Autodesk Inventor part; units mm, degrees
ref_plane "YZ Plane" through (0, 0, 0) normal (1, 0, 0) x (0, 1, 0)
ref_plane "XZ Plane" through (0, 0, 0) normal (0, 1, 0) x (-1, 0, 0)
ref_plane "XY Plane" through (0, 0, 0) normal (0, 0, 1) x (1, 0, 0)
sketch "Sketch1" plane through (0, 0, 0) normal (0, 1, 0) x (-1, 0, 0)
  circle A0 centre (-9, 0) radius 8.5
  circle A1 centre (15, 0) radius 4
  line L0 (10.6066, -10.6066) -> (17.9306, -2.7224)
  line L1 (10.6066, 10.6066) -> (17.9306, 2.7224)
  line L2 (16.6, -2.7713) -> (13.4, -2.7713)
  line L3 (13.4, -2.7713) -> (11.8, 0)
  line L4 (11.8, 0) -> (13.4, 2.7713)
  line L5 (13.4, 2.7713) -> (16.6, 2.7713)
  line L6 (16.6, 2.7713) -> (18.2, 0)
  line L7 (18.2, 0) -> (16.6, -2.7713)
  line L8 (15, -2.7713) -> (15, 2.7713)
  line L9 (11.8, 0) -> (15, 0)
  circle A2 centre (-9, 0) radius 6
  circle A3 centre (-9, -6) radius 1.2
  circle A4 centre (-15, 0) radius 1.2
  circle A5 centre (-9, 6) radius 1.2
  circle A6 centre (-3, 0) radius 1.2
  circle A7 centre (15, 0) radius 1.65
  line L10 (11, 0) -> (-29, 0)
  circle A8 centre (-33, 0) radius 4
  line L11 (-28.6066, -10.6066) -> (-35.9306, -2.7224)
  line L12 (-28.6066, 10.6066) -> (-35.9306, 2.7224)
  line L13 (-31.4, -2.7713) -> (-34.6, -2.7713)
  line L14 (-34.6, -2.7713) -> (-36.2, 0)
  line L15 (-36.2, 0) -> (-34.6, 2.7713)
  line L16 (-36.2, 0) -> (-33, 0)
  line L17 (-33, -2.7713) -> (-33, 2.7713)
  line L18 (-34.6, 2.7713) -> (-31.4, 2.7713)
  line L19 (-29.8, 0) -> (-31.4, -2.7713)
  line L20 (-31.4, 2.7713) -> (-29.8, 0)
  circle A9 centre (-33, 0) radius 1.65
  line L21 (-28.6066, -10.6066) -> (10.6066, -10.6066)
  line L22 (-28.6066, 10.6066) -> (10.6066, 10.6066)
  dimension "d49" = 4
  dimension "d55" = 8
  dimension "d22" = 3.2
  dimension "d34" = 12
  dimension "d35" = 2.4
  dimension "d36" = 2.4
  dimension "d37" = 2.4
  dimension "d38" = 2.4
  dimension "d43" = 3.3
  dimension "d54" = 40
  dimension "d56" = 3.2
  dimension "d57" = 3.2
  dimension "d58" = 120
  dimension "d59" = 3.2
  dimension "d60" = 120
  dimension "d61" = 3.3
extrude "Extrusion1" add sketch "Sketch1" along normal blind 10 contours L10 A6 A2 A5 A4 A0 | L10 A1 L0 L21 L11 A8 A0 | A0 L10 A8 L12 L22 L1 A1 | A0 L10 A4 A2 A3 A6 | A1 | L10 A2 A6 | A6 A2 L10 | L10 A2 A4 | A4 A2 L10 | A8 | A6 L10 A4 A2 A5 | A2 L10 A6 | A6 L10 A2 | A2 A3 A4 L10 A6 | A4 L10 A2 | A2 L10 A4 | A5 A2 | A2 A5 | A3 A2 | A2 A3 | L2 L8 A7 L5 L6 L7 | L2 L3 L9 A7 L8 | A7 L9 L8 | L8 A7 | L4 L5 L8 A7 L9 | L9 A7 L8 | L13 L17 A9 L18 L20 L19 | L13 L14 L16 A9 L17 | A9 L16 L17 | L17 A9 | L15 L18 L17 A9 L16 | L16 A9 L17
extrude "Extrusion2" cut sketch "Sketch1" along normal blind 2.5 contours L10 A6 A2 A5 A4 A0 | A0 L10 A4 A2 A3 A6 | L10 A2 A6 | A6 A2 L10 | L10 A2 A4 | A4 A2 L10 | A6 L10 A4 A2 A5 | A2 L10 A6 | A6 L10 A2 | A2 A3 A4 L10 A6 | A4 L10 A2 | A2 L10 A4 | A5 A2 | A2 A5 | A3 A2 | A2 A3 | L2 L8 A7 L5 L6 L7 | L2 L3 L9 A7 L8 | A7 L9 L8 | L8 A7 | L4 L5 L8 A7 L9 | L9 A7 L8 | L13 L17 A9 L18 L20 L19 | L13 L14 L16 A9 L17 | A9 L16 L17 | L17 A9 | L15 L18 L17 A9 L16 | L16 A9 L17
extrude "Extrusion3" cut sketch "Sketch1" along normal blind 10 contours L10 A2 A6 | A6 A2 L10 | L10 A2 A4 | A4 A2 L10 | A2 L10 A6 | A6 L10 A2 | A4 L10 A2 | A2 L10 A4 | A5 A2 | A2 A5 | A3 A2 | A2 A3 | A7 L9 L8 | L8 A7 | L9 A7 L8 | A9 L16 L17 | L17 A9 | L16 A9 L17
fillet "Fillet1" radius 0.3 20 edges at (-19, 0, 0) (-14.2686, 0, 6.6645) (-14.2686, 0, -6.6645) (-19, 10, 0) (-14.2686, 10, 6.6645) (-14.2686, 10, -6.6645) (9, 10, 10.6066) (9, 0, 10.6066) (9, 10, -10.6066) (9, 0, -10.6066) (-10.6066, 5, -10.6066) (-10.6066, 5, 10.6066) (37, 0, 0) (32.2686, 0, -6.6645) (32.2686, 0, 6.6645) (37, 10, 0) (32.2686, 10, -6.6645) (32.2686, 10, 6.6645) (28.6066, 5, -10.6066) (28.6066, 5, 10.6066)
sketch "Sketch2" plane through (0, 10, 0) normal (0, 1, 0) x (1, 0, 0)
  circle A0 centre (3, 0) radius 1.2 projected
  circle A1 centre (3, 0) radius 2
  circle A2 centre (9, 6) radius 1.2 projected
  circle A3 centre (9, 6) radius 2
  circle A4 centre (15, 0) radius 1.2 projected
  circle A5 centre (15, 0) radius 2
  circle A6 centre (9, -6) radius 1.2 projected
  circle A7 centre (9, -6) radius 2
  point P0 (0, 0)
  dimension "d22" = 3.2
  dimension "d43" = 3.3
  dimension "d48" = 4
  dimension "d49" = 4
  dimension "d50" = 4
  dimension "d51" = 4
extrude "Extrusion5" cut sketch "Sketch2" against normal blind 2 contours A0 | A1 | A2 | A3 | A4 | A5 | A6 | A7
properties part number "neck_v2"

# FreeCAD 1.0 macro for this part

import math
import FreeCAD as App
import Part
import Sketcher

V = App.Vector
Q = App.Units.Quantity


def edges_at(feature, points):
    """Names of the edges that pass closest to the given points."""
    edges = feature.Shape.Edges
    near = lambda p: min(range(len(edges)), key=lambda i: edges[i].distToShape(Part.Vertex(*p))[0])
    return sorted({f"Edge{near(p) + 1}" for p in points})

doc = App.newDocument("Part")
body = doc.addObject("PartDesign::Body", "Body")

sketch1 = body.newObject("Sketcher::SketchObject", "Sketch")
sketch1.AttachmentSupport = (doc.getObject("XZ_Plane"), [""])
sketch1.MapMode = "FlatFace"
sketch1.addGeometry([
    Part.LineSegment(V(28.6066, 10.6066, 0), V(35.9306, 2.7224, 0)),
    Part.ArcOfCircle(Part.Circle(V(33, 0, 0), V(0, 0, 1), 4), math.radians(-42.89075), math.radians(42.89075)),
    Part.LineSegment(V(35.9306, -2.7224, 0), V(28.6066, -10.6066, 0)),
    Part.LineSegment(V(28.6066, -10.6066, 0), V(-10.6066, -10.6066, 0)),
    Part.LineSegment(V(-10.6066, -10.6066, 0), V(-17.9306, -2.7224, 0)),
    Part.ArcOfCircle(Part.Circle(V(-15, 0, 0), V(0, 0, 1), 4), math.radians(137.10925), math.radians(222.89075)),
    Part.LineSegment(V(-17.9306, 2.7224, 0), V(-10.6066, 10.6066, 0)),
    Part.LineSegment(V(-10.6066, 10.6066, 0), V(28.6066, 10.6066, 0)),
], False)
sketch1.addConstraint([
    Sketcher.Constraint("Tangent", 0, 2, 1, 2),
    Sketcher.Constraint("Tangent", 1, 1, 2, 1),
    Sketcher.Constraint("Coincident", 2, 2, 3, 1),
    Sketcher.Constraint("Coincident", 3, 2, 4, 1),
    Sketcher.Constraint("Tangent", 4, 2, 5, 2),
    Sketcher.Constraint("Tangent", 5, 1, 6, 1),
    Sketcher.Constraint("Coincident", 6, 2, 7, 1),
    Sketcher.Constraint("Coincident", 7, 2, 0, 1),
    Sketcher.Constraint("Horizontal", 3),
    Sketcher.Constraint("Horizontal", 7),
    Sketcher.Constraint("Equal", 1, 5),
    Sketcher.Constraint("Symmetric", 0, 2, 1, 1, -1),
    Sketcher.Constraint("Symmetric", 4, 2, 5, 1, -1),
    Sketcher.Constraint("Parallel", 0, 4),
    Sketcher.Constraint("Vertical", 3, 2, 6, 2),
    Sketcher.Constraint("Radius", 1, 4.0),
    Sketcher.Constraint("DistanceX", -1, 1, 1, 3, 33.0),
    Sketcher.Constraint("DistanceX", 5, 3, -1, 1, 15.0),
    Sketcher.Constraint("Angle", 0, Q("-47.1096 deg")),
    Sketcher.Constraint("Distance", 0, 10.761),
])
pad1 = body.newObject("PartDesign::Pad", "Pad")
pad1.Profile = sketch1
pad1.Length = 10
pad1.Reversed = True

sketch2 = body.newObject("Sketcher::SketchObject", "Sketch001")
sketch2.AttachmentSupport = (doc.getObject("XZ_Plane"), [""])
sketch2.MapMode = "FlatFace"
sketch2.addGeometry([
    Part.Circle(V(9, 0, 0), V(0, 0, 1), 8.5),
    Part.LineSegment(V(-16.6, -2.7713, 0), V(-18.2, 0, 0)),
    Part.LineSegment(V(-18.2, 0, 0), V(-16.6, 2.7713, 0)),
    Part.LineSegment(V(-16.6, 2.7713, 0), V(-13.4, 2.7713, 0)),
    Part.LineSegment(V(-13.4, 2.7713, 0), V(-11.8, 0, 0)),
    Part.LineSegment(V(-11.8, 0, 0), V(-13.4, -2.7713, 0)),
    Part.LineSegment(V(-13.4, -2.7713, 0), V(-16.6, -2.7713, 0)),
    Part.LineSegment(V(31.4, -2.7713, 0), V(29.8, 0, 0)),
    Part.LineSegment(V(29.8, 0, 0), V(31.4, 2.7713, 0)),
    Part.LineSegment(V(31.4, 2.7713, 0), V(34.6, 2.7713, 0)),
    Part.LineSegment(V(34.6, 2.7713, 0), V(36.2, 0, 0)),
    Part.LineSegment(V(36.2, 0, 0), V(34.6, -2.7713, 0)),
    Part.LineSegment(V(34.6, -2.7713, 0), V(31.4, -2.7713, 0)),
], False)
sketch2.addConstraint([
    Sketcher.Constraint("Coincident", 1, 2, 2, 1),
    Sketcher.Constraint("Coincident", 2, 2, 3, 1),
    Sketcher.Constraint("Coincident", 3, 2, 4, 1),
    Sketcher.Constraint("Coincident", 4, 2, 5, 1),
    Sketcher.Constraint("Coincident", 5, 2, 6, 1),
    Sketcher.Constraint("Coincident", 6, 2, 1, 1),
    Sketcher.Constraint("Coincident", 7, 2, 8, 1),
    Sketcher.Constraint("Coincident", 8, 2, 9, 1),
    Sketcher.Constraint("Coincident", 9, 2, 10, 1),
    Sketcher.Constraint("Coincident", 10, 2, 11, 1),
    Sketcher.Constraint("Coincident", 11, 2, 12, 1),
    Sketcher.Constraint("Coincident", 12, 2, 7, 1),
    Sketcher.Constraint("Horizontal", 3),
    Sketcher.Constraint("Horizontal", 6),
    Sketcher.Constraint("Horizontal", 9),
    Sketcher.Constraint("Horizontal", 12),
    Sketcher.Constraint("Symmetric", 3, 2, 5, 2, -1),
    Sketcher.Constraint("Symmetric", 9, 2, 11, 2, -1),
    Sketcher.Constraint("PointOnObject", 0, 3, -1),
    Sketcher.Constraint("PointOnObject", 1, 2, -1),
    Sketcher.Constraint("PointOnObject", 4, 2, -1),
    Sketcher.Constraint("PointOnObject", 7, 2, -1),
    Sketcher.Constraint("PointOnObject", 10, 2, -1),
    Sketcher.Constraint("Parallel", 1, 4),
    Sketcher.Constraint("Parallel", 2, 5),
    Sketcher.Constraint("Parallel", 4, 7),
    Sketcher.Constraint("Parallel", 5, 8),
    Sketcher.Constraint("Parallel", 7, 10),
    Sketcher.Constraint("Horizontal", 3, 2, 8, 2),
    Sketcher.Constraint("Equal", 6, 9),
    Sketcher.Constraint("Angle", 1, Q("119.9998 deg")),
    Sketcher.Constraint("Diameter", 0, 17.0),
    Sketcher.Constraint("DistanceX", 3, 1, 3, 2, 3.2),
    Sketcher.Constraint("Distance", 1, 3.2),
    Sketcher.Constraint("DistanceX", -1, 1, 0, 3, 9.0),
    Sketcher.Constraint("DistanceX", 3, 2, 9, 2, 48.0),
    Sketcher.Constraint("DistanceX", 1, 2, -1, 1, 18.2),
])
pocket1 = body.newObject("PartDesign::Pocket", "Pocket")
pocket1.Profile = sketch2
pocket1.Length = 2.5

sketch3 = body.newObject("Sketcher::SketchObject", "Sketch002")
sketch3.AttachmentSupport = (doc.getObject("XZ_Plane"), [""])
sketch3.MapMode = "FlatFace"
sketch3.addGeometry([
    Part.Circle(V(3, 0, 0), V(0, 0, 1), 1.2),
    Part.Circle(V(15, 0, 0), V(0, 0, 1), 1.2),
    Part.Circle(V(9, 6, 0), V(0, 0, 1), 1.2),
    Part.Circle(V(9, -6, 0), V(0, 0, 1), 1.2),
    Part.Circle(V(-15, 0, 0), V(0, 0, 1), 1.65),
    Part.Circle(V(33, 0, 0), V(0, 0, 1), 1.65),
], False)
sketch3.addConstraint([
    Sketcher.Constraint("Equal", 0, 1),
    Sketcher.Constraint("Equal", 1, 2),
    Sketcher.Constraint("Equal", 2, 3),
    Sketcher.Constraint("Equal", 4, 5),
    Sketcher.Constraint("Symmetric", 1, 3, 4, 3, -1, 1),
    Sketcher.Constraint("Symmetric", 2, 3, 3, 3, -1),
    Sketcher.Constraint("PointOnObject", 0, 3, -1),
    Sketcher.Constraint("PointOnObject", 1, 3, -1),
    Sketcher.Constraint("PointOnObject", 5, 3, -1),
    Sketcher.Constraint("Diameter", 0, 2.4),
    Sketcher.Constraint("Diameter", 4, 3.3),
    Sketcher.Constraint("DistanceX", 0, 3, 1, 3, 12.0),
    Sketcher.Constraint("DistanceY", 3, 3, 2, 3, 12.0),
    Sketcher.Constraint("DistanceX", -1, 1, 0, 3, 3.0),
    Sketcher.Constraint("DistanceX", -1, 1, 2, 3, 9.0),
    Sketcher.Constraint("DistanceX", -1, 1, 5, 3, 33.0),
])
pocket2 = body.newObject("PartDesign::Pocket", "Pocket001")
pocket2.Profile = sketch3
pocket2.Length = 10
doc.recompute()

fillet = body.newObject("PartDesign::Fillet", "Fillet")
fillet.Base = (pocket2, edges_at(pocket2, [
    (-19, 0, 0),
    (-14.269, 0, 6.665),
    (-14.269, 0, -6.665),
    (-19, 10, 0),
    (-14.269, 10, 6.665),
    (-14.269, 10, -6.665),
    (9, 10, 10.607),
    (9, 0, 10.607),
    (9, 10, -10.607),
    (9, 0, -10.607),
    (-10.607, 5, -10.607),
    (-10.607, 5, 10.607),
    (37, 0, 0),
    (32.269, 0, -6.665),
    (32.269, 0, 6.665),
    (37, 10, 0),
    (32.269, 10, -6.665),
    (32.269, 10, 6.665),
    (28.607, 5, -10.607),
    (28.607, 5, 10.607),
]))
fillet.Radius = 0.3

sketch4 = body.newObject("Sketcher::SketchObject", "Sketch003")
sketch4.AttachmentSupport = (doc.getObject("XZ_Plane"), [""])
sketch4.MapMode = "FlatFace"
sketch4.AttachmentOffset = App.Placement(V(0, 0, -10), App.Rotation())
sketch4.addGeometry([
    Part.Circle(V(3, 0, 0), V(0, 0, 1), 2),
    Part.Circle(V(9, -6, 0), V(0, 0, 1), 2),
    Part.Circle(V(15, 0, 0), V(0, 0, 1), 2),
    Part.Circle(V(9, 6, 0), V(0, 0, 1), 2),
], False)
sketch4.addConstraint([
    Sketcher.Constraint("Equal", 0, 1),
    Sketcher.Constraint("Equal", 1, 2),
    Sketcher.Constraint("Equal", 2, 3),
    Sketcher.Constraint("Symmetric", 1, 3, 3, 3, -1),
    Sketcher.Constraint("PointOnObject", 0, 3, -1),
    Sketcher.Constraint("PointOnObject", 2, 3, -1),
    Sketcher.Constraint("Diameter", 0, 4.0),
    Sketcher.Constraint("DistanceX", -1, 1, 0, 3, 3.0),
    Sketcher.Constraint("DistanceX", -1, 1, 1, 3, 9.0),
    Sketcher.Constraint("DistanceY", 1, 3, -1, 1, 6.0),
    Sketcher.Constraint("DistanceX", -1, 1, 2, 3, 15.0),
])
pocket3 = body.newObject("PartDesign::Pocket", "Pocket002")
pocket3.Profile = sketch4
pocket3.Length = 2
pocket3.Reversed = True

doc.recompute()
